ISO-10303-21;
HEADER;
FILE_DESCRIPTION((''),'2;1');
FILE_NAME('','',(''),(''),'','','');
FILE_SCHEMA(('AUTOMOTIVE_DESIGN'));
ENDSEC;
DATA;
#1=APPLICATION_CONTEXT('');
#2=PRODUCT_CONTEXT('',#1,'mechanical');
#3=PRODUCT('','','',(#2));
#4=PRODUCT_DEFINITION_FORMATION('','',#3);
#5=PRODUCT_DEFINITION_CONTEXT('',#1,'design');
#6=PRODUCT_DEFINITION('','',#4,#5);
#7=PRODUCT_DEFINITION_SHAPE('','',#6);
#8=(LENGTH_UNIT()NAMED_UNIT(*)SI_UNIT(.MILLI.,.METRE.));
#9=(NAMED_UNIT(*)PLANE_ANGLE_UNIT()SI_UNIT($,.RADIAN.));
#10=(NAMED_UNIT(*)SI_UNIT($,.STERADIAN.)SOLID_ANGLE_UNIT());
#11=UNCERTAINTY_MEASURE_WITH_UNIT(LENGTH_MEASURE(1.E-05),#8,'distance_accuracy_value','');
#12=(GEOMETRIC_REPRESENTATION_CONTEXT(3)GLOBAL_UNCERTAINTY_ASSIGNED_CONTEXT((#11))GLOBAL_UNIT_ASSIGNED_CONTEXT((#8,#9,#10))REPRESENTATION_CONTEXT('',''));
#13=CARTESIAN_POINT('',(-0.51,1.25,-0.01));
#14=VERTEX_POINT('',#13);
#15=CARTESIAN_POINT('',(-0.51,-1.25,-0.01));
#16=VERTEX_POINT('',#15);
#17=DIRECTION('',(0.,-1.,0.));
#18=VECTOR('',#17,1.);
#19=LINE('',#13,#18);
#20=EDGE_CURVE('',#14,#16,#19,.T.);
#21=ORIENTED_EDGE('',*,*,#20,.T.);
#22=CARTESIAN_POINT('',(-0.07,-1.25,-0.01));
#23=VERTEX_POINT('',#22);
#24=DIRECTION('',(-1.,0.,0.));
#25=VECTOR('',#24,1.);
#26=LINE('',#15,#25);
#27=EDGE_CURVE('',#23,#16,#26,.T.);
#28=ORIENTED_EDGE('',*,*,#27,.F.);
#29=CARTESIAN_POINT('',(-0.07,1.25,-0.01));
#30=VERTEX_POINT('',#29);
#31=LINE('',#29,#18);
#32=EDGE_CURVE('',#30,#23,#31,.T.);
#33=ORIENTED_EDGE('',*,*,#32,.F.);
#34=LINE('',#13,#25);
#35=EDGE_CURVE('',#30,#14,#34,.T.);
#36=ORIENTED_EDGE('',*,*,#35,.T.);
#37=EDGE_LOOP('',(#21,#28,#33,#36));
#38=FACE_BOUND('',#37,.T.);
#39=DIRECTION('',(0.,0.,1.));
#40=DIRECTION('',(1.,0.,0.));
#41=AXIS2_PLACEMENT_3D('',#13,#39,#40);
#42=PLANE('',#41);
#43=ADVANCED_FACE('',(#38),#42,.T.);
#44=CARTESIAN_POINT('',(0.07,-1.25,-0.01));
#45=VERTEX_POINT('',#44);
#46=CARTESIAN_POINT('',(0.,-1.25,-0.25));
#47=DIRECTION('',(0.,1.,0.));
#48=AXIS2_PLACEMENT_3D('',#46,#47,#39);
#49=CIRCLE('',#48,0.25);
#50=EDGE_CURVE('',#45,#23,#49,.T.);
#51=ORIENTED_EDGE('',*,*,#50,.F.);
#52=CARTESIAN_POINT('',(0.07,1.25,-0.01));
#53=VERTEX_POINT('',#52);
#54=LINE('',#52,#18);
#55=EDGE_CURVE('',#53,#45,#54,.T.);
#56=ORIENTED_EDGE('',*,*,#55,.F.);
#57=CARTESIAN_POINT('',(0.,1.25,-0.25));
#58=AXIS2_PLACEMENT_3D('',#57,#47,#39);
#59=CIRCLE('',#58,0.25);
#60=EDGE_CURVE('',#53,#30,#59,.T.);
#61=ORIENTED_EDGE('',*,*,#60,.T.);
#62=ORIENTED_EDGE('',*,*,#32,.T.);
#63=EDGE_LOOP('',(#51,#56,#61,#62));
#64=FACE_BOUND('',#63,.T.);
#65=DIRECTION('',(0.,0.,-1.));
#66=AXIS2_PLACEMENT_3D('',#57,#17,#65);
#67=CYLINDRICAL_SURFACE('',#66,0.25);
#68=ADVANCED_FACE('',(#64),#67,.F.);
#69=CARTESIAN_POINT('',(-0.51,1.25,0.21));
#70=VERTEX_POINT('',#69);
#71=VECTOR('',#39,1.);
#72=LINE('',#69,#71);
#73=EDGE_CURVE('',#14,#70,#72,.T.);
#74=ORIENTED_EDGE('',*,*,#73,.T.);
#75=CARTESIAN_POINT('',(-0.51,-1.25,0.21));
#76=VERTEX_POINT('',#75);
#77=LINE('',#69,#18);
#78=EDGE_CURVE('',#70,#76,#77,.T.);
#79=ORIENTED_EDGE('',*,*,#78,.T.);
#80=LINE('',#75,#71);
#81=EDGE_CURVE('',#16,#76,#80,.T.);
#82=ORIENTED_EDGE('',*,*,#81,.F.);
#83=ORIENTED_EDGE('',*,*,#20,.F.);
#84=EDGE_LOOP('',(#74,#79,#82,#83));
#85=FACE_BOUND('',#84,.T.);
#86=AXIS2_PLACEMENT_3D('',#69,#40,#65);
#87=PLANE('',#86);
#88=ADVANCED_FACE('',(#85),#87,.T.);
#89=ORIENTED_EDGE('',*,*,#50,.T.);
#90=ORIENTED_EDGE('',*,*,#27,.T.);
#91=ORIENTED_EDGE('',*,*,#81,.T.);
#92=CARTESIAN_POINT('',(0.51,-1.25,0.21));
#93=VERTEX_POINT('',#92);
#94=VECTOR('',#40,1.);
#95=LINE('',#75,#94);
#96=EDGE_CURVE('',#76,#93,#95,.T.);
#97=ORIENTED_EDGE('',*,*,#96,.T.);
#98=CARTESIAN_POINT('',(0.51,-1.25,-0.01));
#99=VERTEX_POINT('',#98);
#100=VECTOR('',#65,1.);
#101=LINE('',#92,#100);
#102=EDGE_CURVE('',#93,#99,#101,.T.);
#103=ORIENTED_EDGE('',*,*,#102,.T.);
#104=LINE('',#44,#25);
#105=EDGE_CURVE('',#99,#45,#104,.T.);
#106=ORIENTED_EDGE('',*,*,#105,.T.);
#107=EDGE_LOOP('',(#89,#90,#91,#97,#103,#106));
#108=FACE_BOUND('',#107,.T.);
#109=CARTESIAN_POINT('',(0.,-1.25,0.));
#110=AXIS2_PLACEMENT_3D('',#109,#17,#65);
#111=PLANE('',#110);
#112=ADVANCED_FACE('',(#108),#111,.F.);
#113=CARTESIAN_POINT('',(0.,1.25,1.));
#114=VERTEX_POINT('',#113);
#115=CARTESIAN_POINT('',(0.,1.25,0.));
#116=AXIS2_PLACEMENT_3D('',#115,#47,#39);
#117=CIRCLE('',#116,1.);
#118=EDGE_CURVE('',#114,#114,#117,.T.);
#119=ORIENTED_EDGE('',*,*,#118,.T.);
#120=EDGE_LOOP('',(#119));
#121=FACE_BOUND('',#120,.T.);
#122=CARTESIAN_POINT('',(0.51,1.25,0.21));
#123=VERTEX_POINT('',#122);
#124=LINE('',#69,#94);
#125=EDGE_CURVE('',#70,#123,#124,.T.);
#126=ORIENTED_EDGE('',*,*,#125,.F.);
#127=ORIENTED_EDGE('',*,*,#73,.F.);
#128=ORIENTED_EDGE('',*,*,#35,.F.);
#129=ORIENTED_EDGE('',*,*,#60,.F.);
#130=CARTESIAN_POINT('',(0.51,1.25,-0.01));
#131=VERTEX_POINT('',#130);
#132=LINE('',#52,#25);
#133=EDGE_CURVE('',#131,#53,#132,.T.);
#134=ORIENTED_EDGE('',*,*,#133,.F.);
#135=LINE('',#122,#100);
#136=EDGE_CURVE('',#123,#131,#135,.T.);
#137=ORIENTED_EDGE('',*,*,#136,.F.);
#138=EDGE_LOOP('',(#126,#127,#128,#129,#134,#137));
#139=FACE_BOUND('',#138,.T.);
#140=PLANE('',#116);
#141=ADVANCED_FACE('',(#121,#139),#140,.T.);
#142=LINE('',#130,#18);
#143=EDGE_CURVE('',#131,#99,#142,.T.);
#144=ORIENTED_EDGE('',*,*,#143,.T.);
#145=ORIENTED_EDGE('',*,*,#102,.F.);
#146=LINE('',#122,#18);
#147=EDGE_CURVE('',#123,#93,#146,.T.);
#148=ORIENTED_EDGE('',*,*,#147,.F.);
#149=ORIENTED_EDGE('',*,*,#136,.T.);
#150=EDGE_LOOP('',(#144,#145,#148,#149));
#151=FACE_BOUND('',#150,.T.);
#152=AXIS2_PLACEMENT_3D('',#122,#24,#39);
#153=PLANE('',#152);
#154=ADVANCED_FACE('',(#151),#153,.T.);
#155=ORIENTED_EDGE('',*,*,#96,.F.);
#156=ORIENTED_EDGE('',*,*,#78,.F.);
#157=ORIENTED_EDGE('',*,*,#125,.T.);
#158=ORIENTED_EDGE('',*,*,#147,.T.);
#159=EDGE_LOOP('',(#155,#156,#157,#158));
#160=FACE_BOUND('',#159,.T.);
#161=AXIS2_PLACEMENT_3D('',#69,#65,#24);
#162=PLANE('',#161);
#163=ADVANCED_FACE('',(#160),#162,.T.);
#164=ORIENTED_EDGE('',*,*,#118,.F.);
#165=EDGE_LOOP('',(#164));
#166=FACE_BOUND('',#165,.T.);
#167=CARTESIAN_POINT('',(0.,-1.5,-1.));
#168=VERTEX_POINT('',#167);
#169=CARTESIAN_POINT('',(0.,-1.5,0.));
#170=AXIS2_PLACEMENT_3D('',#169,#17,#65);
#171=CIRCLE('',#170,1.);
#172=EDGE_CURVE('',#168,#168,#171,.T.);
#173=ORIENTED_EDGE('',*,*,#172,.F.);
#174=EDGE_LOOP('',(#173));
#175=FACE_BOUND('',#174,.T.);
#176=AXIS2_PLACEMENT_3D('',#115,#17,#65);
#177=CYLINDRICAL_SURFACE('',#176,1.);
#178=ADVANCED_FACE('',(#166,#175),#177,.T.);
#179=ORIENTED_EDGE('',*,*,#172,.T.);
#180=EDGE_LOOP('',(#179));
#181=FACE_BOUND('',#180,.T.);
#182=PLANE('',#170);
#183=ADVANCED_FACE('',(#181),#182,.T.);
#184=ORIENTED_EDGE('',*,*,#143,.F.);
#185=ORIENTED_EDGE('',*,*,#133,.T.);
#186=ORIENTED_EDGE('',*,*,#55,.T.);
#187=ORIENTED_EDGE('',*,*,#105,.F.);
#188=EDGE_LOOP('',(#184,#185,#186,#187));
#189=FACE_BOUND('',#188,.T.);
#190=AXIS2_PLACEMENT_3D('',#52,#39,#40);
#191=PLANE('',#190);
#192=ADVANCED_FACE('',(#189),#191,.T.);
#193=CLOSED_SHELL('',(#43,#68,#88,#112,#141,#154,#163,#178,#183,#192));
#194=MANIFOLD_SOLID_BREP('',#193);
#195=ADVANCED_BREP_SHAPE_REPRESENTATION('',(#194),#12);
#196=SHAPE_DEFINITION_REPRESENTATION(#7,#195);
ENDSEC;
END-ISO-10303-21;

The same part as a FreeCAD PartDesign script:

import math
import FreeCAD as App
import Part
import Sketcher

V = App.Vector
Q = App.Units.Quantity

doc = App.newDocument("Part")
body = doc.addObject("PartDesign::Body", "Body")

# Sketch on XZ plane
sketch1 = body.newObject("Sketcher::SketchObject", "Sketch")
sketch1.AttachmentSupport = (doc.getObject("XZ_Plane"), [""])
sketch1.MapMode = "FlatFace"
sketch1.addGeometry([
    Part.Circle(V(0, 0, 0), V(0, 0, 1), 1),  # 0
    Part.LineSegment(V(0.51, 0.21, 0), V(-0.51, 0.21, 0)),  # 1
    Part.LineSegment(V(-0.51, 0.21, 0), V(-0.51, -0.01, 0)),  # 2
    Part.LineSegment(V(-0.51, -0.01, 0), V(-0.07, -0.01, 0)),  # 3
    Part.ArcOfCircle(Part.Circle(V(0, -0.25, 0), V(0, 0, 1), 0.25), math.radians(106), math.radians(434)),  # 4
    Part.LineSegment(V(0.07, -0.01, 0), V(0.51, -0.01, 0)),  # 5
    Part.LineSegment(V(0.51, -0.01, 0), V(0.51, 0.21, 0)),  # 6
], False)
sketch1.addConstraint([
    Sketcher.Constraint("Coincident", 1, 2, 2, 1),
    Sketcher.Constraint("Coincident", 2, 2, 3, 1),
    Sketcher.Constraint("Coincident", 3, 2, 4, 1),
    Sketcher.Constraint("Coincident", 4, 2, 5, 1),
    Sketcher.Constraint("Coincident", 5, 2, 6, 1),
    Sketcher.Constraint("Coincident", 6, 2, 1, 1),
    Sketcher.Constraint("Horizontal", 1),
    Sketcher.Constraint("Vertical", 2),
    Sketcher.Constraint("Horizontal", 3),
    Sketcher.Constraint("Horizontal", 5),
    Sketcher.Constraint("Vertical", 6),
    Sketcher.Constraint("Coincident", 0, 3, -1, 1),
    Sketcher.Constraint("Symmetric", 3, 2, 4, 2, -2),
    Sketcher.Constraint("Equal", 3, 5),
    Sketcher.Constraint("Diameter", 0, Q("2 mm")),
    Sketcher.Constraint("Radius", 4, Q("0.25 mm")),
    Sketcher.Constraint("DistanceX", 1, 2, 1, 1, Q("1.02 mm")),
    Sketcher.Constraint("DistanceX", 3, 1, 3, 2, Q("0.44 mm")),
    Sketcher.Constraint("DistanceY", 2, 2, 2, 1, Q("0.22 mm")),
    Sketcher.Constraint("DistanceY", 4, 3, -1, 1, Q("0.25 mm")),
])
pad1 = body.newObject("PartDesign::Pad", "Pad")
pad1.Profile = sketch1
pad1.Length = 2.5
pad1.Midplane = True

# Sketch on XZ plane
sketch2 = body.newObject("Sketcher::SketchObject", "Sketch001")
sketch2.AttachmentSupport = (doc.getObject("XZ_Plane"), [""])
sketch2.MapMode = "FlatFace"
sketch2.AttachmentOffset = App.Placement(V(0, 0, 1.25), App.Rotation())
sketch2.addGeometry(Part.Circle(V(0, 0, 0), V(0, 0, 1), 1), False)
sketch2.addConstraint([
    Sketcher.Constraint("Coincident", 0, 3, -1, 1),
    Sketcher.Constraint("Diameter", 0, Q("2 mm")),
])
pad2 = body.newObject("PartDesign::Pad", "Pad001")
pad2.Profile = sketch2
pad2.Length = 0.25

doc.recompute()
